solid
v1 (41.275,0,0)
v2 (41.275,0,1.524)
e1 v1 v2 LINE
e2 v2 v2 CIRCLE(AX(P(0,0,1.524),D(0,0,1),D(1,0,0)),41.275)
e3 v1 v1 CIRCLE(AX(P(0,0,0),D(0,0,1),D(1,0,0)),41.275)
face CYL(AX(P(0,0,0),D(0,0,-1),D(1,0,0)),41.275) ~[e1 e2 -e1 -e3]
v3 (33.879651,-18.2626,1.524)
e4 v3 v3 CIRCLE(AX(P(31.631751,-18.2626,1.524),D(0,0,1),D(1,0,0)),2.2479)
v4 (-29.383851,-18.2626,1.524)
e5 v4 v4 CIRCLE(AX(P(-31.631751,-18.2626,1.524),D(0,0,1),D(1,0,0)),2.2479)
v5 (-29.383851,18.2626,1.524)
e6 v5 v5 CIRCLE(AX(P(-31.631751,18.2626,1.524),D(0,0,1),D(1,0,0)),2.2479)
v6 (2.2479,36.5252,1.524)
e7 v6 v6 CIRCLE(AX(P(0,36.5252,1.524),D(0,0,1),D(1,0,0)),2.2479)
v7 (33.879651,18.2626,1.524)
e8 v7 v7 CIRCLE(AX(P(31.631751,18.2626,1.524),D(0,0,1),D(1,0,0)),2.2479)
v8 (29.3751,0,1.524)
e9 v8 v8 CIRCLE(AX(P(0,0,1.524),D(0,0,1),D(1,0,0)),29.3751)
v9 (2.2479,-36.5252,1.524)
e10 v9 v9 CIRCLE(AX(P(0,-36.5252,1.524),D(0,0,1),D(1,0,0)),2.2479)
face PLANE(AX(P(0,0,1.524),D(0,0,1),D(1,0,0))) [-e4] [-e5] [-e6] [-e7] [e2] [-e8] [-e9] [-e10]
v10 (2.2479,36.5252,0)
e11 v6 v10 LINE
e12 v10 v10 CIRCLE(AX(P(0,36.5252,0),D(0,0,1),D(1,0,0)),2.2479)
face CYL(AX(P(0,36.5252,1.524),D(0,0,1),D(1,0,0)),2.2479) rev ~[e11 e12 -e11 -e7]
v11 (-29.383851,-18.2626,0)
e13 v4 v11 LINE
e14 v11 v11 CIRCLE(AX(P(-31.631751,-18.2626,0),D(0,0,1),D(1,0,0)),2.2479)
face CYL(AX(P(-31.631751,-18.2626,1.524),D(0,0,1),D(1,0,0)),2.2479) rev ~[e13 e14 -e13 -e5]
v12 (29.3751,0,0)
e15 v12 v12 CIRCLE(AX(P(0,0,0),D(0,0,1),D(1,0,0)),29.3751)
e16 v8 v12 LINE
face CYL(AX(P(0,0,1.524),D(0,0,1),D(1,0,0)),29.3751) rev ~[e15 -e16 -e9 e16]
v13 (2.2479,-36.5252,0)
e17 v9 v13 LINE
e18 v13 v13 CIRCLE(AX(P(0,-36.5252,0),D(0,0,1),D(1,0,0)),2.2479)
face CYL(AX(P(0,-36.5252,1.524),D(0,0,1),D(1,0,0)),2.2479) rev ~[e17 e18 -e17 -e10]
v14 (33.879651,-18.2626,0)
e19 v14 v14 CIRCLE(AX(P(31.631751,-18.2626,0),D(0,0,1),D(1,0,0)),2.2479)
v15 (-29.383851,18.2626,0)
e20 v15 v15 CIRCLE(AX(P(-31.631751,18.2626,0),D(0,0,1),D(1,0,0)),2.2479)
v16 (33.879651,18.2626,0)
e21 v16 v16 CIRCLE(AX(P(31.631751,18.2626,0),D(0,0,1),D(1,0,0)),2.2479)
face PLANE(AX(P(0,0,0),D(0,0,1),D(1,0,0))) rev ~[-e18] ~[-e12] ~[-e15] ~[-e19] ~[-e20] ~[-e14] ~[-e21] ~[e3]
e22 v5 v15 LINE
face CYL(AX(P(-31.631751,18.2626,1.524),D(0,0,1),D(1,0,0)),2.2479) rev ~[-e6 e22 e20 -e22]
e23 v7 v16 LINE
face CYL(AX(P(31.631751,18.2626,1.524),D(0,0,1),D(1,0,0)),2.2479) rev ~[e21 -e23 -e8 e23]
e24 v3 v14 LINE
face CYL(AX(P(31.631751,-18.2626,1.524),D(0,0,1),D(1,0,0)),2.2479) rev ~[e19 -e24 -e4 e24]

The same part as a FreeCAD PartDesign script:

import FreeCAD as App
import Part
import Sketcher
Q = App.Units.Quantity

doc = App.newDocument("Part")
body = doc.addObject("PartDesign::Body", "Body")

# Sketch on XY plane
sketch1 = doc.addObject("Sketcher::SketchObject", "Sketch")
body.addObject(sketch1)
sketch1.AttachmentSupport = (doc.XY_Plane, [""])
sketch1.MapMode = "FlatFace"
sketch1.addGeometry(Part.Circle(App.Vector(0, 0, 0), App.Vector(0, 0, 1), 41), False)
sketch1.addConstraint([
    Sketcher.Constraint("Coincident", 0, 3, -1, 1),
    Sketcher.Constraint("Diameter", 0, Q("3.25 in")),
])
pad1 = doc.addObject("PartDesign::Pad", "Pad")
body.addObject(pad1)
pad1.Profile = sketch1
pad1.Length = Q("0.06 in")

# Sketch on XY plane
sketch2 = doc.addObject("Sketcher::SketchObject", "Sketch001")
body.addObject(sketch2)
sketch2.AttachmentSupport = (doc.XY_Plane, [""])
sketch2.MapMode = "FlatFace"
sketch2.AttachmentOffset = App.Placement(App.Vector(0, 0, 0.06 * 25.4), App.Rotation())
sketch2.addGeometry([
    Part.Circle(App.Vector(0, 36.5, 0), App.Vector(0, 0, 1), 2.2),  # 0
    Part.Circle(App.Vector(-31.6, 18.3, 0), App.Vector(0, 0, 1), 2.2),  # 1
    Part.Circle(App.Vector(-31.6, -18.3, 0), App.Vector(0, 0, 1), 2.2),  # 2
    Part.Circle(App.Vector(0, -36.5, 0), App.Vector(0, 0, 1), 2.2),  # 3
    Part.Circle(App.Vector(31.6, -18.3, 0), App.Vector(0, 0, 1), 2.2),  # 4
    Part.Circle(App.Vector(31.6, 18.3, 0), App.Vector(0, 0, 1), 2.2),  # 5
], False)
sketch2.addConstraint([
    Sketcher.Constraint("Equal", 0, 1),
    Sketcher.Constraint("Equal", 1, 2),
    Sketcher.Constraint("Equal", 2, 3),
    Sketcher.Constraint("Equal", 3, 4),
    Sketcher.Constraint("Equal", 4, 5),
    Sketcher.Constraint("Symmetric", 0, 3, 3, 3, -1, 1),
    Sketcher.Constraint("Symmetric", 1, 3, 4, 3, -1, 1),
    Sketcher.Constraint("Symmetric", 2, 3, 5, 3, -1, 1),
    Sketcher.Constraint("Symmetric", 2, 3, 4, 3, -2),
    Sketcher.Constraint("PointOnObject", 0, 3, -2),
    Sketcher.Constraint("Diameter", 0, Q("0.177 in")),
    Sketcher.Constraint("DistanceY", -1, 1, 0, 3, Q("1.438 in")),
    Sketcher.Constraint("DistanceY", -1, 1, 1, 3, Q("0.719 in")),
    Sketcher.Constraint("DistanceX", 1, 3, -1, 1, 31.631751),
])
pocket1 = doc.addObject("PartDesign::Pocket", "Pocket")
body.addObject(pocket1)
pocket1.Profile = sketch2
pocket1.Type = "ThroughAll"

# Sketch on XY plane
sketch3 = doc.addObject("Sketcher::SketchObject", "Sketch002")
body.addObject(sketch3)
sketch3.AttachmentSupport = (doc.XY_Plane, [""])
sketch3.MapMode = "FlatFace"
sketch3.AttachmentOffset = App.Placement(App.Vector(0, 0, 0.06 * 25.4), App.Rotation())
sketch3.addGeometry(Part.Circle(App.Vector(0, 0, 0), App.Vector(0, 0, 1), 29), False)
sketch3.addConstraint([
    Sketcher.Constraint("Coincident", 0, 3, -1, 1),
    Sketcher.Constraint("Diameter", 0, Q("2.313 in")),
])
pocket2 = doc.addObject("PartDesign::Pocket", "Pocket001")
body.addObject(pocket2)
pocket2.Profile = sketch3
pocket2.Type = "ThroughAll"

doc.recompute()
